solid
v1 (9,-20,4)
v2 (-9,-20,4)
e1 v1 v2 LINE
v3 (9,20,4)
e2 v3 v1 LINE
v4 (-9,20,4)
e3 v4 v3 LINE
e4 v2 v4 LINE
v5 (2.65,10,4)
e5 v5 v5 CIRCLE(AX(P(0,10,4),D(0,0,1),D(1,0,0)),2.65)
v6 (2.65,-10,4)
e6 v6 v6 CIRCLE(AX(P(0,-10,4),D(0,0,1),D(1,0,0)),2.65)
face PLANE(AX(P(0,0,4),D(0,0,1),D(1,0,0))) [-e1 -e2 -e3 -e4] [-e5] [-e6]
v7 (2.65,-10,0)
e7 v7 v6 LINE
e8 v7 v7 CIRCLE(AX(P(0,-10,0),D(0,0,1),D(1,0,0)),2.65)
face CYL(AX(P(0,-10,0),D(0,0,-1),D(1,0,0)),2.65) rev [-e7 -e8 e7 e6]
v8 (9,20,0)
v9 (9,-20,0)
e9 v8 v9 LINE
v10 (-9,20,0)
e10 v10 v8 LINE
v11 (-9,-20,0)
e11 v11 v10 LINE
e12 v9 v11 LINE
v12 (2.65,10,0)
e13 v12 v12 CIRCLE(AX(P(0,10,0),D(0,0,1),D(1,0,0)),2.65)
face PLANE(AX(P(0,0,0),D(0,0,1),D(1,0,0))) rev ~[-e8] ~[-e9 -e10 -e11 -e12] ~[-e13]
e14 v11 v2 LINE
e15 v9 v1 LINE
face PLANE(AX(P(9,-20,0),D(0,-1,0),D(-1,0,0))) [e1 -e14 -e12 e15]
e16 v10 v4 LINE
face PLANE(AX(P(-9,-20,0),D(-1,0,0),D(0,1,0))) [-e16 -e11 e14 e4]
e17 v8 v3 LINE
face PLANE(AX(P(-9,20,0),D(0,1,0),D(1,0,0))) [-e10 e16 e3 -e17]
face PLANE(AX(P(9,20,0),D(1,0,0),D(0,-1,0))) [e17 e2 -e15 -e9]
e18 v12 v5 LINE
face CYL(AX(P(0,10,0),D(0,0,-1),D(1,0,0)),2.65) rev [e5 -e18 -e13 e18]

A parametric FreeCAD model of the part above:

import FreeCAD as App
import Part
import Sketcher

V = App.Vector


def add_polygon(sketch, points):
    """Adds a closed chain of lines whose ends are joined by coincident constraints."""
    first, n = sketch.GeometryCount, len(points)
    for a, b in zip(points, points[1:] + points[:1]):
        sketch.addGeometry(Part.LineSegment(App.Vector(*a, 0), App.Vector(*b, 0)), False)
    for i in range(n):
        sketch.addConstraint(Sketcher.Constraint("Coincident", first + i, 2, first + (i + 1) % n, 1))

doc = App.newDocument("Part")
body = doc.addObject("PartDesign::Body", "Body")

sketch1 = body.newObject("Sketcher::SketchObject", "Sketch")
sketch1.AttachmentSupport = (doc.getObject("XY_Plane"), [""])
sketch1.MapMode = "FlatFace"
add_polygon(sketch1, [(9, 20), (-9, 20), (-9, -20), (9, -20)])
sketch1.addGeometry(Part.Circle(V(0, -10, 0), V(0, 0, 1), 2.6), False)
sketch1.addGeometry(Part.Circle(V(0, 10, 0), V(0, 0, 1), 2.6), False)
sketch1.addConstraint([
    Sketcher.Constraint("Horizontal", 0),
    Sketcher.Constraint("Vertical", 1),
    Sketcher.Constraint("Horizontal", 2),
    Sketcher.Constraint("Vertical", 3),
    Sketcher.Constraint("Equal", 4, 5),
    Sketcher.Constraint("Symmetric", 4, 3, 5, 3, -1, 1),
    Sketcher.Constraint("Symmetric", 0, 2, 2, 2, -1, 1),
    Sketcher.Constraint("PointOnObject", 4, 3, -2),
    Sketcher.Constraint("Diameter", 4, 5.3),
    Sketcher.Constraint("DistanceX", 0, 2, 0, 1, 18.0),
    Sketcher.Constraint("DistanceY", 1, 2, 1, 1, 40.0),
    Sketcher.Constraint("DistanceY", 4, 3, -1, 1, 10.0),
])
pad1 = body.newObject("PartDesign::Pad", "Pad")
pad1.Profile = sketch1
pad1.Length = 4

doc.recompute()
